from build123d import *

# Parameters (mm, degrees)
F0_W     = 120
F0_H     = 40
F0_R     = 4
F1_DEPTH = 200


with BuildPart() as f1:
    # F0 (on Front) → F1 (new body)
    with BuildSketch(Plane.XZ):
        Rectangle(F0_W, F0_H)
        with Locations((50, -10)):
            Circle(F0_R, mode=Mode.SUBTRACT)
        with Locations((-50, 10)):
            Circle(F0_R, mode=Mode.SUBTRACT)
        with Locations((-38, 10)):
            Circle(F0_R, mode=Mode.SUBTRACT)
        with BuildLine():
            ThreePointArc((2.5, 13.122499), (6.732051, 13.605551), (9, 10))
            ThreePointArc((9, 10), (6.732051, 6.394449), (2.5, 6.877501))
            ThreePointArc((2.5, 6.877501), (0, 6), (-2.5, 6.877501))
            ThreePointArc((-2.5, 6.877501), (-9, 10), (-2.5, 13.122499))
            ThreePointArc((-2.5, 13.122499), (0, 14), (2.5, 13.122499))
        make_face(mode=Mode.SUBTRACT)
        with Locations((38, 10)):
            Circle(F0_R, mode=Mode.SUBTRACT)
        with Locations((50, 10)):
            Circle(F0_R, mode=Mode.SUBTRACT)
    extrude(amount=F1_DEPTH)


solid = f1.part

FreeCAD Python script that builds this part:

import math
import FreeCAD as App
import Part
import Sketcher
from FreeCAD import Vector
Q = App.Units.Quantity

doc = App.newDocument("Part")
params = doc.addObject("Spreadsheet::Sheet", "Params")
for row, (alias, value) in enumerate([
    ("sketch1_diameter", "8 mm"),
    ("sketch1_width", "120 mm"),
    ("sketch1_height", "40 mm"),
    ("pad1_length", "200 mm"),
], start=1):
    params.set(f"A{row}", alias)
    params.set(f"B{row}", "=" + value)
    params.setAlias(f"B{row}", alias)

body = doc.addObject("PartDesign::Body", "Body")

# Sketch on XZ plane
sketch1 = body.newObject("Sketcher::SketchObject", "Sketch")
sketch1.AttachmentSupport = (doc.getObject("XZ_Plane"), [""])
sketch1.MapMode = "FlatFace"
sketch1.addGeometry([
    Part.LineSegment(Vector(-60, 20, 0), Vector(-60, -20, 0)),  # 0
    Part.LineSegment(Vector(-60, -20, 0), Vector(60, -20, 0)),  # 1
    Part.LineSegment(Vector(60, -20, 0), Vector(60, 20, 0)),  # 2
    Part.LineSegment(Vector(60, 20, 0), Vector(-60, 20, 0)),  # 3
    Part.Circle(Vector(50, -10, 0), Vector(0, 0, 1), 4),  # 4
    Part.Circle(Vector(-50, 10, 0), Vector(0, 0, 1), 4),  # 5
    Part.Circle(Vector(-38, 10, 0), Vector(0, 0, 1), 4),  # 6
    Part.ArcOfCircle(Part.Circle(Vector(0, 10, 0), Vector(0, 0, 1), 4), math.radians(51), math.radians(129)),  # 7
    Part.ArcOfCircle(Part.Circle(Vector(5, 10, 0), Vector(0, 0, 1), 4), math.radians(0), math.radians(129)),  # 8
    Part.ArcOfCircle(Part.Circle(Vector(5, 10, 0), Vector(0, 0, 1), 4), math.radians(-129), math.radians(0)),  # 9
    Part.ArcOfCircle(Part.Circle(Vector(0, 10, 0), Vector(0, 0, 1), 4), math.radians(-129), math.radians(-51)),  # 10
    Part.ArcOfCircle(Part.Circle(Vector(-5, 10, 0), Vector(0, 0, 1), 4), math.radians(51), math.radians(309)),  # 11
    Part.Circle(Vector(38, 10, 0), Vector(0, 0, 1), 4),  # 12
    Part.Circle(Vector(50, 10, 0), Vector(0, 0, 1), 4),  # 13
], False)
sketch1.addConstraint([
    Sketcher.Constraint("Coincident", 0, 2, 1, 1),
    Sketcher.Constraint("Coincident", 1, 2, 2, 1),
    Sketcher.Constraint("Coincident", 2, 2, 3, 1),
    Sketcher.Constraint("Coincident", 3, 2, 0, 1),
    Sketcher.Constraint("Coincident", 7, 1, 8, 2),
    Sketcher.Constraint("Tangent", 8, 1, 9, 2),
    Sketcher.Constraint("Coincident", 9, 1, 10, 2),
    Sketcher.Constraint("Coincident", 10, 1, 11, 2),
    Sketcher.Constraint("Coincident", 11, 1, 7, 2),
    Sketcher.Constraint("Vertical", 0),
    Sketcher.Constraint("Horizontal", 1),
    Sketcher.Constraint("Vertical", 2),
    Sketcher.Constraint("Horizontal", 3),
    Sketcher.Constraint("Coincident", 10, 3, 7, 3),
    Sketcher.Constraint("Equal", 4, 5),
    Sketcher.Constraint("Equal", 5, 6),
    Sketcher.Constraint("Equal", 6, 7),
    Sketcher.Constraint("Equal", 7, 8),
    Sketcher.Constraint("Equal", 8, 9),
    Sketcher.Constraint("Equal", 9, 10),
    Sketcher.Constraint("Equal", 10, 11),
    Sketcher.Constraint("Equal", 11, 12),
    Sketcher.Constraint("Equal", 12, 13),
    Sketcher.Constraint("Symmetric", 4, 3, 5, 3, -1, 1),
    Sketcher.Constraint("Symmetric", 0, 2, 2, 2, -1, 1),
    Sketcher.Constraint("Symmetric", 8, 3, 11, 3, -2),
    Sketcher.Constraint("Symmetric", 6, 3, 12, 3, -2),
    Sketcher.Constraint("Symmetric", 5, 3, 13, 3, -2),
    Sketcher.Constraint("PointOnObject", 7, 3, -2),
    Sketcher.Constraint("Horizontal", 5, 3, 6, 3),
    Sketcher.Constraint("Horizontal", 6, 3, 7, 3),
    Sketcher.Constraint("Horizontal", 7, 3, 8, 3),
    Sketcher.Constraint("Horizontal", 13, 3, 8, 1),
    Sketcher.Constraint("Diameter", 4, Q("8 mm")),
    Sketcher.Constraint("DistanceX", 1, 1, 1, 2, Q("120 mm")),
    Sketcher.Constraint("DistanceY", 0, 2, 0, 1, Q("40 mm")),
    Sketcher.Constraint("DistanceX", -1, 1, 4, 3, Q("50 mm")),
    Sketcher.Constraint("DistanceY", 4, 3, -1, 1, Q("10 mm")),
    Sketcher.Constraint("DistanceX", 6, 3, -1, 1, Q("38 mm")),
    Sketcher.Constraint("DistanceX", -1, 1, 8, 3, Q("5 mm")),
])
sketch1.setExpression("Constraints[33]", "Params.sketch1_diameter")
sketch1.setExpression("Constraints[34]", "Params.sketch1_width")
sketch1.setExpression("Constraints[35]", "Params.sketch1_height")
pad1 = body.newObject("PartDesign::Pad", "Pad")
pad1.Profile = sketch1
pad1.setExpression("Length", "Params.pad1_length")

doc.recompute()
